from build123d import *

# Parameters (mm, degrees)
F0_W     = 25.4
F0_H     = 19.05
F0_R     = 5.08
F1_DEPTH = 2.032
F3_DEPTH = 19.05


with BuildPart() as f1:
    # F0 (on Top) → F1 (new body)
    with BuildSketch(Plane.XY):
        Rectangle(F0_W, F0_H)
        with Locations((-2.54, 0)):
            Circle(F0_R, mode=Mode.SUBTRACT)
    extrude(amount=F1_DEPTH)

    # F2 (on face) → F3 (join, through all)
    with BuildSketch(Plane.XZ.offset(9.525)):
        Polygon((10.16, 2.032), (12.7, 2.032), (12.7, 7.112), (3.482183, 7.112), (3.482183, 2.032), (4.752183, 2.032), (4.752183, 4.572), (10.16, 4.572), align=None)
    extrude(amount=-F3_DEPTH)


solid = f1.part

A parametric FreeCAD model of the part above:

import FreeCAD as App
import Part
import Sketcher
from FreeCAD import Vector
Q = App.Units.Quantity

doc = App.newDocument("Part")
params = doc.addObject("Spreadsheet::Sheet", "Params")
for row, (alias, value) in enumerate([
    ("sketch1_diameter", "0.4 in"),
    ("sketch1_width", "1 in"),
    ("sketch1_height", "0.75 in"),
    ("pad1_length", "0.08 in"),
    ("sketch2_width", "0.1 in"),
    ("sketch2_height", "0.2 in"),
    ("sketch2_width2", "0.05 in"),
    ("pad2_length", "0.75 in"),
], start=1):
    params.set(f"A{row}", alias)
    params.set(f"B{row}", "=" + value)
    params.setAlias(f"B{row}", alias)

body = doc.addObject("PartDesign::Body", "Body")

# Sketch on XY plane
sketch1 = body.newObject("Sketcher::SketchObject", "Sketch")
sketch1.AttachmentSupport = (doc.getObject("XY_Plane"), [""])
sketch1.MapMode = "FlatFace"
sketch1.addGeometry(Part.LineSegment(Vector(-12.7, 9.525, 0), Vector(-12.7, -9.525, 0)), False)
sketch1.addGeometry(Part.LineSegment(Vector(-12.7, -9.525, 0), Vector(12.7, -9.525, 0)), False)
sketch1.addGeometry(Part.LineSegment(Vector(12.7, -9.525, 0), Vector(12.7, 9.525, 0)), False)
sketch1.addGeometry(Part.LineSegment(Vector(12.7, 9.525, 0), Vector(-12.7, 9.525, 0)), False)
sketch1.addGeometry(Part.Circle(Vector(-2.54, 0, 0), Vector(0, 0, 1), 5.08), False)
sketch1.addConstraint(Sketcher.Constraint("Coincident", 0, 2, 1, 1))
sketch1.addConstraint(Sketcher.Constraint("Coincident", 1, 2, 2, 1))
sketch1.addConstraint(Sketcher.Constraint("Coincident", 2, 2, 3, 1))
sketch1.addConstraint(Sketcher.Constraint("Coincident", 3, 2, 0, 1))
sketch1.addConstraint(Sketcher.Constraint("Vertical", 0))
sketch1.addConstraint(Sketcher.Constraint("Horizontal", 1))
sketch1.addConstraint(Sketcher.Constraint("Vertical", 2))
sketch1.addConstraint(Sketcher.Constraint("Horizontal", 3))
sketch1.addConstraint(Sketcher.Constraint("Symmetric", 0, 2, 2, 2, -1, 1))
sketch1.addConstraint(Sketcher.Constraint("PointOnObject", 4, 3, -1))
sketch1.addConstraint(Sketcher.Constraint("Diameter", 4, Q("0.4 in")))
sketch1.addConstraint(Sketcher.Constraint("DistanceX", 1, 1, 1, 2, Q("1 in")))
sketch1.addConstraint(Sketcher.Constraint("DistanceY", 0, 2, 0, 1, Q("0.75 in")))
sketch1.addConstraint(Sketcher.Constraint("DistanceX", 4, 3, -1, 1, Q("0.1 in")))
sketch1.setExpression("Constraints[10]", "Params.sketch1_diameter")
sketch1.setExpression("Constraints[11]", "Params.sketch1_width")
sketch1.setExpression("Constraints[12]", "Params.sketch1_height")
pad1 = body.newObject("PartDesign::Pad", "Pad")
pad1.Profile = sketch1
pad1.setExpression("Length", "Params.pad1_length")

# Sketch on XZ plane
sketch2 = body.newObject("Sketcher::SketchObject", "Sketch001")
sketch2.AttachmentSupport = (doc.getObject("XZ_Plane"), [""])
sketch2.MapMode = "FlatFace"
sketch2.AttachmentOffset = App.Placement(Vector(0, 0, 0.375 * 25.4), App.Rotation())
sketch2.addGeometry(Part.LineSegment(Vector(10.16, 2.032, 0), Vector(12.7, 2.032, 0)), False)
sketch2.addGeometry(Part.LineSegment(Vector(12.7, 2.032, 0), Vector(12.7, 7.112, 0)), False)
sketch2.addGeometry(Part.LineSegment(Vector(12.7, 7.112, 0), Vector(3.482183, 7.112, 0)), False)
sketch2.addGeometry(Part.LineSegment(Vector(3.482183, 7.112, 0), Vector(3.482183, 2.032, 0)), False)
sketch2.addGeometry(Part.LineSegment(Vector(3.482183, 2.032, 0), Vector(4.752183, 2.032, 0)), False)
sketch2.addGeometry(Part.LineSegment(Vector(4.752183, 2.032, 0), Vector(4.752183, 4.572, 0)), False)
sketch2.addGeometry(Part.LineSegment(Vector(4.752183, 4.572, 0), Vector(10.16, 4.572, 0)), False)
sketch2.addGeometry(Part.LineSegment(Vector(10.16, 4.572, 0), Vector(10.16, 2.032, 0)), False)
sketch2.addConstraint(Sketcher.Constraint("Coincident", 0, 2, 1, 1))
sketch2.addConstraint(Sketcher.Constraint("Coincident", 1, 2, 2, 1))
sketch2.addConstraint(Sketcher.Constraint("Coincident", 2, 2, 3, 1))
sketch2.addConstraint(Sketcher.Constraint("Coincident", 3, 2, 4, 1))
sketch2.addConstraint(Sketcher.Constraint("Coincident", 4, 2, 5, 1))
sketch2.addConstraint(Sketcher.Constraint("Coincident", 5, 2, 6, 1))
sketch2.addConstraint(Sketcher.Constraint("Coincident", 6, 2, 7, 1))
sketch2.addConstraint(Sketcher.Constraint("Coincident", 7, 2, 0, 1))
sketch2.addConstraint(Sketcher.Constraint("Horizontal", 0))
sketch2.addConstraint(Sketcher.Constraint("Vertical", 1))
sketch2.addConstraint(Sketcher.Constraint("Horizontal", 2))
sketch2.addConstraint(Sketcher.Constraint("Vertical", 3))
sketch2.addConstraint(Sketcher.Constraint("Horizontal", 4))
sketch2.addConstraint(Sketcher.Constraint("Vertical", 5))
sketch2.addConstraint(Sketcher.Constraint("Horizontal", 6))
sketch2.addConstraint(Sketcher.Constraint("Vertical", 7))
sketch2.addConstraint(Sketcher.Constraint("Horizontal", 0, 2, 3, 2))
sketch2.addConstraint(Sketcher.Constraint("Equal", 0, 5))
sketch2.addConstraint(Sketcher.Constraint("DistanceX", 0, 1, 0, 2, Q("0.1 in")))
sketch2.addConstraint(Sketcher.Constraint("DistanceY", 1, 1, 1, 2, Q("0.2 in")))
sketch2.addConstraint(Sketcher.Constraint("DistanceX", 4, 1, 4, 2, Q("0.05 in")))
sketch2.addConstraint(Sketcher.Constraint("DistanceX", -1, 1, 0, 2, Q("0.5 in")))
sketch2.addConstraint(Sketcher.Constraint("DistanceY", -1, 1, 0, 2, Q("0.08 in")))
sketch2.addConstraint(Sketcher.Constraint("DistanceX", 2, 2, 2, 1, Q("9.217817 mm")))
sketch2.setExpression("Constraints[18]", "Params.sketch2_width")
sketch2.setExpression("Constraints[19]", "Params.sketch2_height")
sketch2.setExpression("Constraints[20]", "Params.sketch2_width2")
pad2 = body.newObject("PartDesign::Pad", "Pad001")
pad2.Profile = sketch2
pad2.setExpression("Length", "Params.pad2_length")
pad2.Reversed = True

doc.recompute()
